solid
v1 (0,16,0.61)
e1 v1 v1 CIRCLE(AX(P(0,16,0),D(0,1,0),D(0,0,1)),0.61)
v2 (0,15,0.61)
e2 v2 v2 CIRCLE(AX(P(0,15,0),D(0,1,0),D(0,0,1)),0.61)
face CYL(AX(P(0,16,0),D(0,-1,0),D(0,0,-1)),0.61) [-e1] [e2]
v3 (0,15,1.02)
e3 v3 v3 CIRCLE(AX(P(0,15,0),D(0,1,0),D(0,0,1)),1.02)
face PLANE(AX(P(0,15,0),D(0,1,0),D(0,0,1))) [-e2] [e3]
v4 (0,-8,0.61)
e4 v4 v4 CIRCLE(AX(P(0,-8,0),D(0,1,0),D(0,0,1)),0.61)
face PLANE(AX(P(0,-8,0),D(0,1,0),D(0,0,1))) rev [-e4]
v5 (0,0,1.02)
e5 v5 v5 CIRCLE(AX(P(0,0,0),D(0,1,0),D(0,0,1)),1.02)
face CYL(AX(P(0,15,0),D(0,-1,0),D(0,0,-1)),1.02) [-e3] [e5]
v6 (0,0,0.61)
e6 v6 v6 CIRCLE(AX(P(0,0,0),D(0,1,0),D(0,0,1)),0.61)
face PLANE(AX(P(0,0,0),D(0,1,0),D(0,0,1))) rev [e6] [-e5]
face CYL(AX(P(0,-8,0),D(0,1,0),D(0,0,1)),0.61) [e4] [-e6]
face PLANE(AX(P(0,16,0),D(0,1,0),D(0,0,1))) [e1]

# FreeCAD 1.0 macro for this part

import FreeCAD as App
import Part
import Sketcher
from FreeCAD import Vector
Q = App.Units.Quantity

doc = App.newDocument("Part")
params = doc.addObject("Spreadsheet::Sheet", "Params")
for row, (alias, value) in enumerate([
    ("sketch1_diameter", "1.22 mm"),
    ("pad1_length", "8 mm"),
    ("sketch2_diameter", "2.04 mm"),
    ("pad2_length", "15 mm"),
    ("sketch3_diameter", "1.22 mm"),
    ("pad3_length", "1 mm"),
], start=1):
    params.set(f"A{row}", alias)
    params.set(f"B{row}", "=" + value)
    params.setAlias(f"B{row}", alias)

body = doc.addObject("PartDesign::Body", "Body")

# Sketch on XZ plane
sketch1 = doc.addObject("Sketcher::SketchObject", "Sketch")
body.addObject(sketch1)
sketch1.AttachmentSupport = (doc.XZ_Plane, [""])
sketch1.MapMode = "FlatFace"
sketch1.addGeometry(Part.Circle(Vector(0, 0, 0), Vector(0, 0, 1), 0.6), False)
sketch1.addConstraint([
    Sketcher.Constraint("Coincident", 0, 3, -1, 1),
    Sketcher.Constraint("Diameter", 0, Q("1.22 mm")),
])
sketch1.setExpression("Constraints[1]", "Params.sketch1_diameter")
pad1 = doc.addObject("PartDesign::Pad", "Pad")
body.addObject(pad1)
pad1.Profile = sketch1
pad1.setExpression("Length", "Params.pad1_length")

# Sketch on XZ plane
sketch2 = doc.addObject("Sketcher::SketchObject", "Sketch001")
body.addObject(sketch2)
sketch2.AttachmentSupport = (doc.XZ_Plane, [""])
sketch2.MapMode = "FlatFace"
sketch2.addGeometry(Part.Circle(Vector(0, 0, 0), Vector(0, 0, 1), 1), False)
sketch2.addConstraint([
    Sketcher.Constraint("Coincident", 0, 3, -1, 1),
    Sketcher.Constraint("Diameter", 0, Q("2.04 mm")),
])
sketch2.setExpression("Constraints[1]", "Params.sketch2_diameter")
pad2 = doc.addObject("PartDesign::Pad", "Pad001")
body.addObject(pad2)
pad2.Profile = sketch2
pad2.setExpression("Length", "Params.pad2_length")
pad2.Reversed = True

# Sketch on XZ plane
sketch3 = doc.addObject("Sketcher::SketchObject", "Sketch002")
body.addObject(sketch3)
sketch3.AttachmentSupport = (doc.XZ_Plane, [""])
sketch3.MapMode = "FlatFace"
sketch3.AttachmentOffset = App.Placement(Vector(0, 0, -16), App.Rotation())
sketch3.addGeometry(Part.Circle(Vector(0, 0, 0), Vector(0, 0, 1), 0.6), False)
sketch3.addConstraint([
    Sketcher.Constraint("Coincident", 0, 3, -1, 1),
    Sketcher.Constraint("Diameter", 0, Q("1.22 mm")),
])
sketch3.setExpression("Constraints[1]", "Params.sketch3_diameter")
pad3 = doc.addObject("PartDesign::Pad", "Pad002")
body.addObject(pad3)
pad3.Profile = sketch3
pad3.setExpression("Length", "Params.pad3_length")

doc.recompute()
